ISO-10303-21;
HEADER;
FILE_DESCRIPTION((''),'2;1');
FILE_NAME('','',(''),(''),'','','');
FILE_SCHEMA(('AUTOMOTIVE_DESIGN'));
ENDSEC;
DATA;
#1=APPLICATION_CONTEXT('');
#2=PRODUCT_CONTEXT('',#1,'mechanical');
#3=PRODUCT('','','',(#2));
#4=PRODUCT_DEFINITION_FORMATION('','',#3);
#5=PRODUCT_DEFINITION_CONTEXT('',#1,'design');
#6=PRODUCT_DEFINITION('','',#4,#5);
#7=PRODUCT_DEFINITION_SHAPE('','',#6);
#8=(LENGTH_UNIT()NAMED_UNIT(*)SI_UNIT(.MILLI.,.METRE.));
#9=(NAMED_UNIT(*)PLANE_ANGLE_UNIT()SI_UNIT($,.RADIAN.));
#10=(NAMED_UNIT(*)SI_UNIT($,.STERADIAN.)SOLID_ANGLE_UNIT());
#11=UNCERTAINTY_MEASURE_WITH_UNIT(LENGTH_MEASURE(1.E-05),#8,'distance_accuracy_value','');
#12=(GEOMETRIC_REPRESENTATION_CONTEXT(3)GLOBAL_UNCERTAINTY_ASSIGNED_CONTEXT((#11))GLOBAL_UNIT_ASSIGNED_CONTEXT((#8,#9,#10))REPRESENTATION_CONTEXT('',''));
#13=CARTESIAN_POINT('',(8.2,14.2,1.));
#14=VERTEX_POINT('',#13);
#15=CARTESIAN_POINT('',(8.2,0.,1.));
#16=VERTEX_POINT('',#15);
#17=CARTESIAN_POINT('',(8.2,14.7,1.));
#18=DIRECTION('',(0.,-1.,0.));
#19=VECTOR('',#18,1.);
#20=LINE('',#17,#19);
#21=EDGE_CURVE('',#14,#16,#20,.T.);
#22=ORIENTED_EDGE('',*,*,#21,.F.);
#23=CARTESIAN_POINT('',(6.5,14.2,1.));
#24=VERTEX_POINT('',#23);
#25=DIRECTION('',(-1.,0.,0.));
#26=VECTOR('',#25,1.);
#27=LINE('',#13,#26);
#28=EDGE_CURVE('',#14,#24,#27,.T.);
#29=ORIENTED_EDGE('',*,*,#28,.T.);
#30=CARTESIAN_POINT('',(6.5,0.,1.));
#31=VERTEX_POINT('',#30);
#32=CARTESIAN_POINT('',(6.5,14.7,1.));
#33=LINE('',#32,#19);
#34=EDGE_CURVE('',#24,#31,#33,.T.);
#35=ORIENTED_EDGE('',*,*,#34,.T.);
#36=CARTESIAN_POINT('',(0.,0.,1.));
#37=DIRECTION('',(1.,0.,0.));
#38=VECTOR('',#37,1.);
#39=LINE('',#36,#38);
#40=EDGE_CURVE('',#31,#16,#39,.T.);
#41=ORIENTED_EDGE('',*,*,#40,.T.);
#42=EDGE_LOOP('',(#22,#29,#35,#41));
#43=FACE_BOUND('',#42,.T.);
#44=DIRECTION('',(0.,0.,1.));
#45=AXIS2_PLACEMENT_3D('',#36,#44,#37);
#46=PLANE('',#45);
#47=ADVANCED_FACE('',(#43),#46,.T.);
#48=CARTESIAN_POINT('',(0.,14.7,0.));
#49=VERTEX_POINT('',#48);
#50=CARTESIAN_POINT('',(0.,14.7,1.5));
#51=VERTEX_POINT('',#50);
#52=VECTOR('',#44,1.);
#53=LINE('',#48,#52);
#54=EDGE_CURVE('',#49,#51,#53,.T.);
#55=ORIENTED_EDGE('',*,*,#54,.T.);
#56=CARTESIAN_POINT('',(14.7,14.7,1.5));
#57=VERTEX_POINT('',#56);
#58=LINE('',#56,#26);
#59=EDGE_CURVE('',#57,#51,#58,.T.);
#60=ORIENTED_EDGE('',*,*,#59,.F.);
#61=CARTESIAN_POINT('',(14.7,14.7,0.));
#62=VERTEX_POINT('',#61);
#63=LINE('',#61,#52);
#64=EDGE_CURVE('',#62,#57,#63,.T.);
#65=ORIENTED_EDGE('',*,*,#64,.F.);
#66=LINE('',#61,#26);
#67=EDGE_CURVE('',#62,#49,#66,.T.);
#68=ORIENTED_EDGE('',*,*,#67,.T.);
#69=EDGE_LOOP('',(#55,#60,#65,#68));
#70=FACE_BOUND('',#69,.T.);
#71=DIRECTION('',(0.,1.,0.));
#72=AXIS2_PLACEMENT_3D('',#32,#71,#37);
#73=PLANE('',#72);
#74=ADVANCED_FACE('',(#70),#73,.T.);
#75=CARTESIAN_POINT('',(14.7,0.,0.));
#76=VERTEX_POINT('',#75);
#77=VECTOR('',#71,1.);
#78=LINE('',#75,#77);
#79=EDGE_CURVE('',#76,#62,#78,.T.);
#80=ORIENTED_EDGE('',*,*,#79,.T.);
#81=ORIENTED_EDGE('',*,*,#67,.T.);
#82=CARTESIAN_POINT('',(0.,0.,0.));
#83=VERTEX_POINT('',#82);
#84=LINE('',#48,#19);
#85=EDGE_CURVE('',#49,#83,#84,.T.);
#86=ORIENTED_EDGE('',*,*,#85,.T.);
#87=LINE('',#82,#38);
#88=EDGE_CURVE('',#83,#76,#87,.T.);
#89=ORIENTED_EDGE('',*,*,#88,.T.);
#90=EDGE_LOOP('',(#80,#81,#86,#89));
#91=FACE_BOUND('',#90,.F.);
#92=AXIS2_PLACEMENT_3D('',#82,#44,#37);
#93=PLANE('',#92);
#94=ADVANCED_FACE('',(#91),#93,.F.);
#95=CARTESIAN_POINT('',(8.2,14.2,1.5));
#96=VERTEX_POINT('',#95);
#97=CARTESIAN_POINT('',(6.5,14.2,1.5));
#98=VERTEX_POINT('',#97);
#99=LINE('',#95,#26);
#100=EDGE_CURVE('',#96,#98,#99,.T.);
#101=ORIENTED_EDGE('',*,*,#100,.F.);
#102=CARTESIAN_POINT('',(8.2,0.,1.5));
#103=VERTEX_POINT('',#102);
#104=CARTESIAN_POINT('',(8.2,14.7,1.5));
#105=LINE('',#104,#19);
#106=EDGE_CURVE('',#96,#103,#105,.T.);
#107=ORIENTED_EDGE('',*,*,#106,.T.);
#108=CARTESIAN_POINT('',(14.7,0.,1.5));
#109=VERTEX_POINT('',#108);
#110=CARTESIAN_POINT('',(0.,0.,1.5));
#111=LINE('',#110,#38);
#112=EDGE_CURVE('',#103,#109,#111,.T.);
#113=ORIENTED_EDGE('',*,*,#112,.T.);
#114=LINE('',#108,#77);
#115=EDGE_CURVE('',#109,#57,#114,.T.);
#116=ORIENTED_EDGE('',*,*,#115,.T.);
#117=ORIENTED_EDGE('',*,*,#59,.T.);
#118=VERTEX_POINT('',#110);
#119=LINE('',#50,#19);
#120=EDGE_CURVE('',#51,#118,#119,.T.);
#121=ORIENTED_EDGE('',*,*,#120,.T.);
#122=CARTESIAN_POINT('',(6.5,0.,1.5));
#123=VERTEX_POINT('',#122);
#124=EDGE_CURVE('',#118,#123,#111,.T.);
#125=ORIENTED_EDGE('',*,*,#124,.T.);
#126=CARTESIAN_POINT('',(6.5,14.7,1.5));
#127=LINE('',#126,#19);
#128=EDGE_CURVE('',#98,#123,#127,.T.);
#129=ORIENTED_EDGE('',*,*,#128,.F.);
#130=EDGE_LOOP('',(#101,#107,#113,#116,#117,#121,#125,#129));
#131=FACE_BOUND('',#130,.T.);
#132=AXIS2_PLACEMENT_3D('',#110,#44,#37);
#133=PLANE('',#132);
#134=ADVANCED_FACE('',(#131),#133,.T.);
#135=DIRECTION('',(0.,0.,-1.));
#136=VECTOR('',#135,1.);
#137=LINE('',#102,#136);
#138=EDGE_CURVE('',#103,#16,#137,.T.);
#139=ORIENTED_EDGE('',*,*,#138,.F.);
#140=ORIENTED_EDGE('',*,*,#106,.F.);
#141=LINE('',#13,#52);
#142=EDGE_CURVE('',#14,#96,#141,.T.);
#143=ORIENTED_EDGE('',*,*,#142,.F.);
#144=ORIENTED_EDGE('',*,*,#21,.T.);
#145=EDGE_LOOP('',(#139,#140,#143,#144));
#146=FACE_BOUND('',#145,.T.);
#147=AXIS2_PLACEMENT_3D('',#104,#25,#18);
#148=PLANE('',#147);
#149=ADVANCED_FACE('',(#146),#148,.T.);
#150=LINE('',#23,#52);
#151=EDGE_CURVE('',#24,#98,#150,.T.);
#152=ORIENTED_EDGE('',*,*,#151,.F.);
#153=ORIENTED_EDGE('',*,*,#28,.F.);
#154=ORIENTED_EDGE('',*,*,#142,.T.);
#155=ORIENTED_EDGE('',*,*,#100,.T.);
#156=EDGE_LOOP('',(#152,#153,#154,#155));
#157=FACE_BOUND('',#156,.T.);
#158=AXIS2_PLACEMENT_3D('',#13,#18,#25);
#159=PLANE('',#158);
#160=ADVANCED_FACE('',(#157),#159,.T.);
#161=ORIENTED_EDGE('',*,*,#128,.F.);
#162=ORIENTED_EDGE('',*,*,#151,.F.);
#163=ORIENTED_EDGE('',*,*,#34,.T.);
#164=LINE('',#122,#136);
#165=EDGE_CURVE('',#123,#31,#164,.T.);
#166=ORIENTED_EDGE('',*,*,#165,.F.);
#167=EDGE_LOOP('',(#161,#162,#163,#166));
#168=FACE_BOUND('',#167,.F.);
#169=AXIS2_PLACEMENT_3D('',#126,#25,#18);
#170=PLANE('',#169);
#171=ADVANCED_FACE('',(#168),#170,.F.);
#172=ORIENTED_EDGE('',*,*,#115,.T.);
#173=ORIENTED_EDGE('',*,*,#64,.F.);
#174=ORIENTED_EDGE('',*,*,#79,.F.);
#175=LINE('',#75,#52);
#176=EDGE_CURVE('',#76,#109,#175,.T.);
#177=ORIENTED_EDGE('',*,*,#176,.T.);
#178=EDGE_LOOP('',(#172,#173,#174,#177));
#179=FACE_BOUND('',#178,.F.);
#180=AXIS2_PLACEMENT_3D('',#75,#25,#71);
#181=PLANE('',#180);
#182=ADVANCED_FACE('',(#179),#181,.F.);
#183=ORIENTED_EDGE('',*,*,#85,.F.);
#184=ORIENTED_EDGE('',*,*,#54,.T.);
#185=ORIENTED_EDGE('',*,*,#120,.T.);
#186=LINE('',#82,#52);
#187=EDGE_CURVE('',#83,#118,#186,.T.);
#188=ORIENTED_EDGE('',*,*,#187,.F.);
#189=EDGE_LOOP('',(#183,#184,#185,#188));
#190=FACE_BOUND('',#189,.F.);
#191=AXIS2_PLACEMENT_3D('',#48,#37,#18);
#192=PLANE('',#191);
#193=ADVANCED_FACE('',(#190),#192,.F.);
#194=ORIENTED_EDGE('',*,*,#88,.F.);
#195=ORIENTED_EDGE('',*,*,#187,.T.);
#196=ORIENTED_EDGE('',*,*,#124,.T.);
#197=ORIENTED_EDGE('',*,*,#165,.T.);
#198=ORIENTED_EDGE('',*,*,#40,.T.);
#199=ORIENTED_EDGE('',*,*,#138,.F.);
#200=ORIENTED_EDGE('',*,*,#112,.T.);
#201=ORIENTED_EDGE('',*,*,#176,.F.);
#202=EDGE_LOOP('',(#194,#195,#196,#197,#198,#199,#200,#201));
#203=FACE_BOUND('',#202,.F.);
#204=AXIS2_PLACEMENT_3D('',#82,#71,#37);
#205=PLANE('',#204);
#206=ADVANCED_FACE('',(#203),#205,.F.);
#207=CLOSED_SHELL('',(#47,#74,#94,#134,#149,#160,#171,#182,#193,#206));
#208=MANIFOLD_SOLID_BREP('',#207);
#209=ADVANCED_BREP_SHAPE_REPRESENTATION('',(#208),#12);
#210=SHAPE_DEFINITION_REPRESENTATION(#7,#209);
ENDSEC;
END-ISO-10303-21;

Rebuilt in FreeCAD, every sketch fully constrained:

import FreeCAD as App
import Part
import Sketcher

doc = App.newDocument("Part")
body = doc.addObject("PartDesign::Body", "Body")

sketch1 = doc.addObject("Sketcher::SketchObject", "Sketch")
body.addObject(sketch1)
sketch1.AttachmentSupport = (doc.XY_Plane, [""])
sketch1.MapMode = "FlatFace"
sketch1.addGeometry(Part.LineSegment(App.Vector(0, 14.7, 0), App.Vector(0, 0, 0)), False)
sketch1.addGeometry(Part.LineSegment(App.Vector(0, 0, 0), App.Vector(14.7, 0, 0)), False)
sketch1.addGeometry(Part.LineSegment(App.Vector(14.7, 0, 0), App.Vector(14.7, 14.7, 0)), False)
sketch1.addGeometry(Part.LineSegment(App.Vector(14.7, 14.7, 0), App.Vector(0, 14.7, 0)), False)
sketch1.addConstraint(Sketcher.Constraint("Coincident", 0, 2, 1, 1))
sketch1.addConstraint(Sketcher.Constraint("Coincident", 1, 2, 2, 1))
sketch1.addConstraint(Sketcher.Constraint("Coincident", 2, 2, 3, 1))
sketch1.addConstraint(Sketcher.Constraint("Coincident", 3, 2, 0, 1))
sketch1.addConstraint(Sketcher.Constraint("Vertical", 0))
sketch1.addConstraint(Sketcher.Constraint("Horizontal", 1))
sketch1.addConstraint(Sketcher.Constraint("Vertical", 2))
sketch1.addConstraint(Sketcher.Constraint("Horizontal", 3))
sketch1.addConstraint(Sketcher.Constraint("Coincident", 0, 2, -1, 1))
sketch1.addConstraint(Sketcher.Constraint("Equal", 3, 0))
sketch1.addConstraint(Sketcher.Constraint("DistanceX", 1, 1, 1, 2, 14.7))
pad1 = doc.addObject("PartDesign::Pad", "Pad")
body.addObject(pad1)
pad1.Profile = sketch1
pad1.Length = 1.5

sketch2 = doc.addObject("Sketcher::SketchObject", "Sketch001")
body.addObject(sketch2)
sketch2.AttachmentSupport = (doc.XY_Plane, [""])
sketch2.MapMode = "FlatFace"
sketch2.AttachmentOffset = App.Placement(App.Vector(0, 0, 1.5), App.Rotation())
sketch2.addGeometry(Part.LineSegment(App.Vector(6.5, 14.7, 0), App.Vector(6.5, 0, 0)), False)
sketch2.addGeometry(Part.LineSegment(App.Vector(6.5, 0, 0), App.Vector(8.2, 0, 0)), False)
sketch2.addGeometry(Part.LineSegment(App.Vector(8.2, 0, 0), App.Vector(8.2, 14.7, 0)), False)
sketch2.addGeometry(Part.LineSegment(App.Vector(8.2, 14.7, 0), App.Vector(6.5, 14.7, 0)), False)
sketch2.addConstraint(Sketcher.Constraint("Coincident", 0, 2, 1, 1))
sketch2.addConstraint(Sketcher.Constraint("Coincident", 1, 2, 2, 1))
sketch2.addConstraint(Sketcher.Constraint("Coincident", 2, 2, 3, 1))
sketch2.addConstraint(Sketcher.Constraint("Coincident", 3, 2, 0, 1))
sketch2.addConstraint(Sketcher.Constraint("Vertical", 0))
sketch2.addConstraint(Sketcher.Constraint("Horizontal", 1))
sketch2.addConstraint(Sketcher.Constraint("Vertical", 2))
sketch2.addConstraint(Sketcher.Constraint("Horizontal", 3))
sketch2.addConstraint(Sketcher.Constraint("PointOnObject", 0, 2, -1))
sketch2.addConstraint(Sketcher.Constraint("DistanceX", 1, 1, 1, 2, 1.7))
sketch2.addConstraint(Sketcher.Constraint("DistanceX", -1, 1, 0, 2, 6.5))
sketch2.addConstraint(Sketcher.Constraint("DistanceY", 0, 2, 0, 1, 14.7))
pocket1 = doc.addObject("PartDesign::Pocket", "Pocket")
body.addObject(pocket1)
pocket1.Profile = sketch2
pocket1.Length = 0.5

sketch3 = doc.addObject("Sketcher::SketchObject", "Sketch002")
body.addObject(sketch3)
sketch3.AttachmentSupport = (doc.XY_Plane, [""])
sketch3.MapMode = "FlatFace"
sketch3.AttachmentOffset = App.Placement(App.Vector(0, 0, 1), App.Rotation())
sketch3.addGeometry(Part.LineSegment(App.Vector(8.2, 14.2, 0), App.Vector(8.2, 14.7, 0)), False)
sketch3.addGeometry(Part.LineSegment(App.Vector(8.2, 14.7, 0), App.Vector(6.5, 14.7, 0)), False)
sketch3.addGeometry(Part.LineSegment(App.Vector(6.5, 14.7, 0), App.Vector(6.5, 14.2, 0)), False)
sketch3.addGeometry(Part.LineSegment(App.Vector(6.5, 14.2, 0), App.Vector(8.2, 14.2, 0)), False)
sketch3.addConstraint(Sketcher.Constraint("Coincident", 0, 2, 1, 1))
sketch3.addConstraint(Sketcher.Constraint("Coincident", 1, 2, 2, 1))
sketch3.addConstraint(Sketcher.Constraint("Coincident", 2, 2, 3, 1))
sketch3.addConstraint(Sketcher.Constraint("Coincident", 3, 2, 0, 1))
sketch3.addConstraint(Sketcher.Constraint("Vertical", 0))
sketch3.addConstraint(Sketcher.Constraint("Horizontal", 1))
sketch3.addConstraint(Sketcher.Constraint("Vertical", 2))
sketch3.addConstraint(Sketcher.Constraint("Horizontal", 3))
sketch3.addConstraint(Sketcher.Constraint("DistanceY", 0, 1, 0, 2, 0.5))
sketch3.addConstraint(Sketcher.Constraint("DistanceX", 1, 2, 1, 1, 1.7))
sketch3.addConstraint(Sketcher.Constraint("DistanceX", -1, 1, 0, 2, 8.2))
sketch3.addConstraint(Sketcher.Constraint("DistanceY", -1, 1, 0, 2, 14.7))
pad2 = doc.addObject("PartDesign::Pad", "Pad001")
body.addObject(pad2)
pad2.Profile = sketch3
pad2.Length = 0.5

doc.recompute()
